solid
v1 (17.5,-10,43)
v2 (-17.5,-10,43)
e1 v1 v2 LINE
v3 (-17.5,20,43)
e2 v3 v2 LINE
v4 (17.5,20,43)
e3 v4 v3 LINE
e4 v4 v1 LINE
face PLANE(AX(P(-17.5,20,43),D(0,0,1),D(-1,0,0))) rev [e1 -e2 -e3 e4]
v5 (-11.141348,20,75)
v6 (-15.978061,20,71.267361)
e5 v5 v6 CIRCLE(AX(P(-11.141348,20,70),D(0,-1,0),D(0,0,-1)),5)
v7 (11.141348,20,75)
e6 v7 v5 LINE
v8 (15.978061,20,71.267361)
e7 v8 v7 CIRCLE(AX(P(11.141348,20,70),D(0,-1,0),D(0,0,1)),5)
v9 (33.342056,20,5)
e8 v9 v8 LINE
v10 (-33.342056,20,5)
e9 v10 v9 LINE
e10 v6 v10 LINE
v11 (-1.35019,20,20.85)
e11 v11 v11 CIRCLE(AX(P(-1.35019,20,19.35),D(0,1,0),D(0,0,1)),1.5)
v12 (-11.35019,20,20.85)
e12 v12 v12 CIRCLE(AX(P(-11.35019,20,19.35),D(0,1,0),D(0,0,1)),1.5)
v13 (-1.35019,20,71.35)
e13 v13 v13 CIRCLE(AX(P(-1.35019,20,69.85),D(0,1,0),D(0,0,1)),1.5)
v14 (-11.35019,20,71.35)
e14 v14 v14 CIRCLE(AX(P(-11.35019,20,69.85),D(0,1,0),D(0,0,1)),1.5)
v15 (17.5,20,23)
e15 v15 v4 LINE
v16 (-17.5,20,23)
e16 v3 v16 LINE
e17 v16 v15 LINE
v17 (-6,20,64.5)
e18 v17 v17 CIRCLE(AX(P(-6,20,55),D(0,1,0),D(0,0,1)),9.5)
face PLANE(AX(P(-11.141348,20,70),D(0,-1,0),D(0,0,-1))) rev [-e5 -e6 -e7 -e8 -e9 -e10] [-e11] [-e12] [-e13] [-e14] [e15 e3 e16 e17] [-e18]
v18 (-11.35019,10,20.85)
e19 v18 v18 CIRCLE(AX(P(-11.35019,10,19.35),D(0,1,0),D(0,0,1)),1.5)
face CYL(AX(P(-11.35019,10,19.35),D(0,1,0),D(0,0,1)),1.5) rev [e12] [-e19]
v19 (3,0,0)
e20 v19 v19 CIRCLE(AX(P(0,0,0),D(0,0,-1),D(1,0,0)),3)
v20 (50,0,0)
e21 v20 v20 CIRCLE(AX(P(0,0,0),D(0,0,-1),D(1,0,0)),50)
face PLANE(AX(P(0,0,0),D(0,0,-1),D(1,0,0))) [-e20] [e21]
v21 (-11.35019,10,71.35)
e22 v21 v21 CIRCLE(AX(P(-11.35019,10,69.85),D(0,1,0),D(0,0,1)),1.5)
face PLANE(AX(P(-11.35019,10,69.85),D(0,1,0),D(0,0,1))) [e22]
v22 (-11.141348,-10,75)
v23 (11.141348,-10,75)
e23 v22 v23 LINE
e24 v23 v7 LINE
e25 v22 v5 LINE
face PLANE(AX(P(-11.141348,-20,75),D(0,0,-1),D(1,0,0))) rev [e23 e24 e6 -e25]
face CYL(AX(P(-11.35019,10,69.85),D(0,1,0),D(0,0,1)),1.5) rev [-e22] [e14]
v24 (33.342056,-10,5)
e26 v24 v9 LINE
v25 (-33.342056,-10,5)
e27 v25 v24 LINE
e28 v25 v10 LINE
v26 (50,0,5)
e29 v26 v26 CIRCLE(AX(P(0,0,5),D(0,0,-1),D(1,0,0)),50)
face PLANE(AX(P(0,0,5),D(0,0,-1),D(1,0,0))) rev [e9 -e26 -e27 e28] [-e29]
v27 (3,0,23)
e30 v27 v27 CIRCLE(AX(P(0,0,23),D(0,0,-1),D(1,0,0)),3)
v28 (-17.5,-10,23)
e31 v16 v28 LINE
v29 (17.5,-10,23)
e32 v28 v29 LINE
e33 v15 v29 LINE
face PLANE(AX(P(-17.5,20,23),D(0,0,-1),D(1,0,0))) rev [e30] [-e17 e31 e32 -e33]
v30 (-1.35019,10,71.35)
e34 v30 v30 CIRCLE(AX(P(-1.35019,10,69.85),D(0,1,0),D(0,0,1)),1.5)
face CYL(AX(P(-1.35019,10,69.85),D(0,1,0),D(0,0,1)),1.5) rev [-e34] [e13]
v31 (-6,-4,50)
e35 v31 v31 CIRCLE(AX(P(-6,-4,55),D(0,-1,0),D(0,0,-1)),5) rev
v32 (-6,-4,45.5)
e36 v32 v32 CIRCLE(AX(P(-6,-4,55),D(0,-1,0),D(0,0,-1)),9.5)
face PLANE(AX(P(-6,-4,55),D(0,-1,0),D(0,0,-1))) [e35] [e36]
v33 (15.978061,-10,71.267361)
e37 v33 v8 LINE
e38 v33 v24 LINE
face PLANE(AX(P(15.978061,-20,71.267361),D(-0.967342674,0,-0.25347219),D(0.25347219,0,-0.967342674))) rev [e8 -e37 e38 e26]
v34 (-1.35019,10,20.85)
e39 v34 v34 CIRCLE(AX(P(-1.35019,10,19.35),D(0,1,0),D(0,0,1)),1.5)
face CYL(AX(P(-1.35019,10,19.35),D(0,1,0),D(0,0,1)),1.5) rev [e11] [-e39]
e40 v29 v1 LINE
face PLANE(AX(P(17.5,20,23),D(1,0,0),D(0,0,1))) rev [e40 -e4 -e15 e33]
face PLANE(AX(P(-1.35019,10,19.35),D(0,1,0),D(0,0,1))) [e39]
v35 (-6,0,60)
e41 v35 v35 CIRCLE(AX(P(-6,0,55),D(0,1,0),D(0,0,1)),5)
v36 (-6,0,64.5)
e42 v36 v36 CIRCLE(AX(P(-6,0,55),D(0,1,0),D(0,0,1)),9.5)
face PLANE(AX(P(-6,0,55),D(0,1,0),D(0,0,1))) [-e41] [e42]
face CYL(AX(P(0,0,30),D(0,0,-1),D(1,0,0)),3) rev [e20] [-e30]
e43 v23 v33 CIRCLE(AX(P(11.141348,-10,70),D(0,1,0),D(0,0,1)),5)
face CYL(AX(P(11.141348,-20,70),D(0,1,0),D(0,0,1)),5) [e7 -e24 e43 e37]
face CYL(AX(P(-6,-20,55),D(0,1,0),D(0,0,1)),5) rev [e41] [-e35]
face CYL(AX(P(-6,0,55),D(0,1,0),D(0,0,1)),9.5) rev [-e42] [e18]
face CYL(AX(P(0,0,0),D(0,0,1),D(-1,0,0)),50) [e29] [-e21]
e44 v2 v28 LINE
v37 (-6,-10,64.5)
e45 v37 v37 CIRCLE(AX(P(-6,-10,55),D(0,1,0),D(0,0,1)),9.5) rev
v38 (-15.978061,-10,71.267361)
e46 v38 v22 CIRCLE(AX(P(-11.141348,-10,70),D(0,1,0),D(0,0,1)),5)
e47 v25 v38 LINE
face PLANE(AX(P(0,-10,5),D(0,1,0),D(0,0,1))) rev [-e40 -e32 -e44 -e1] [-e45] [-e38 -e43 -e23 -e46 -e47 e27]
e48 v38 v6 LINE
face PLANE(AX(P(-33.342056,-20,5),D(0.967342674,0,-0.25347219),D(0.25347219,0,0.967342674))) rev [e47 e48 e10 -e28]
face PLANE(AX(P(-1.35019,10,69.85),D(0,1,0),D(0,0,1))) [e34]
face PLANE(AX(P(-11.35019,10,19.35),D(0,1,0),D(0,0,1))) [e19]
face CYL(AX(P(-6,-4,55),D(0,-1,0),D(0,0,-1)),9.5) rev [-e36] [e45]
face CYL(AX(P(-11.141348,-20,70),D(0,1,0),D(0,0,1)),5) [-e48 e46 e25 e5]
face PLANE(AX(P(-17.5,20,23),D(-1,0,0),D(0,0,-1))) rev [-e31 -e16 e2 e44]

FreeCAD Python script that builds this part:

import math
import FreeCAD as App
import Part
import Sketcher

V = App.Vector


def add_polygon(sketch, points):
    """Adds a closed chain of lines whose ends are joined by coincident constraints."""
    first, n = sketch.GeometryCount, len(points)
    for a, b in zip(points, points[1:] + points[:1]):
        sketch.addGeometry(Part.LineSegment(App.Vector(*a, 0), App.Vector(*b, 0)), False)
    for i in range(n):
        sketch.addConstraint(Sketcher.Constraint("Coincident", first + i, 2, first + (i + 1) % n, 1))

doc = App.newDocument("Part")
params = doc.addObject("Spreadsheet::Sheet", "Params")
for row, (alias, value) in enumerate([
    ("sketch1_radius", "5 mm"),
    ("pad1_length", "40 mm"),
    ("sketch2_diameter", "19 mm"),
    ("pocket1_length", "20 mm"),
    ("sketch3_diameter", "10 mm"),
    ("sketch4_diameter", "19 mm"),
    ("pocket3_length", "16 mm"),
    ("sketch5_width", "35 mm"),
    ("sketch5_height", "20 mm"),
    ("sketch6_diameter", "6 mm"),
    ("pocket5_length", "25 mm"),
    ("sketch7_diameter", "100 mm"),
    ("sketch7_diameter2", "6 mm"),
    ("pad2_length", "5 mm"),
    ("pocket6_length", "10 mm"),
    ("sketch9_diameter", "3 mm"),
    ("pocket7_length", "10 mm"),
    ("sketch10_diameter", "3 mm"),
    ("pocket8_length", "10 mm"),
], start=1):
    params.set(f"A{row}", alias)
    params.set(f"B{row}", "=" + value)
    params.setAlias(f"B{row}", alias)

body = doc.addObject("PartDesign::Body", "Body")

sketch1 = body.newObject("Sketcher::SketchObject", "Sketch")
sketch1.AttachmentSupport = (doc.getObject("XZ_Plane"), [""])
sketch1.MapMode = "FlatFace"
sketch1.addGeometry(Part.LineSegment(V(11.141348, -70, 0), V(-11.141348, -70, 0)), False)
sketch1.addGeometry(Part.ArcOfCircle(Part.Circle(V(-11.141348, -65, 0), V(0, 0, 1), 5), math.radians(-165.316926), math.radians(-90)), False)
sketch1.addGeometry(Part.LineSegment(V(-15.978061, -66.267361, 0), V(-33.342056, 0, 0)), False)
sketch1.addGeometry(Part.LineSegment(V(-33.342056, 0, 0), V(33.342056, 0, 0)), False)
sketch1.addGeometry(Part.LineSegment(V(33.342056, 0, 0), V(15.978061, -66.267361, 0)), False)
sketch1.addGeometry(Part.ArcOfCircle(Part.Circle(V(11.141348, -65, 0), V(0, 0, 1), 5), math.radians(-90), math.radians(-14.683074)), False)
sketch1.addConstraint(Sketcher.Constraint("Tangent", 0, 2, 1, 2))
sketch1.addConstraint(Sketcher.Constraint("Tangent", 1, 1, 2, 1))
sketch1.addConstraint(Sketcher.Constraint("Coincident", 2, 2, 3, 1))
sketch1.addConstraint(Sketcher.Constraint("Coincident", 3, 2, 4, 1))
sketch1.addConstraint(Sketcher.Constraint("Tangent", 4, 2, 5, 2))
sketch1.addConstraint(Sketcher.Constraint("Tangent", 5, 1, 0, 1))
sketch1.addConstraint(Sketcher.Constraint("Horizontal", 0))
sketch1.addConstraint(Sketcher.Constraint("Horizontal", 3))
sketch1.addConstraint(Sketcher.Constraint("Equal", 1, 5))
sketch1.addConstraint(Sketcher.Constraint("Symmetric", 2, 2, 3, 2, -1, 1))
sketch1.addConstraint(Sketcher.Constraint("Horizontal", 1, 1, 4, 2))
sketch1.addConstraint(Sketcher.Constraint("Radius", 1, 5.0))
sketch1.addConstraint(Sketcher.Constraint("DistanceY", 1, 3, -1, 1, 65.0))
sketch1.addConstraint(Sketcher.Constraint("DistanceX", 3, 1, 3, 2, 66.684112))
sketch1.addConstraint(Sketcher.Constraint("DistanceX", 0, 2, 0, 1, 22.282695))
sketch1.setExpression("Constraints[11]", "Params.sketch1_radius")
pad1 = body.newObject("PartDesign::Pad", "Pad")
pad1.Profile = sketch1
pad1.setExpression("Length", "Params.pad1_length")
pad1.Reversed = True

sketch2 = body.newObject("Sketcher::SketchObject", "Sketch001")
sketch2.AttachmentSupport = (doc.getObject("XZ_Plane"), [""])
sketch2.MapMode = "FlatFace"
sketch2.addGeometry(Part.Circle(V(-6, -50, 0), V(0, 0, 1), 9.5), False)
sketch2.addConstraint(Sketcher.Constraint("Diameter", 0, 19.0))
sketch2.addConstraint(Sketcher.Constraint("DistanceX", 0, 3, -1, 1, 6.0))
sketch2.addConstraint(Sketcher.Constraint("DistanceY", 0, 3, -1, 1, 50.0))
sketch2.setExpression("Constraints[0]", "Params.sketch2_diameter")
pocket1 = body.newObject("PartDesign::Pocket", "Pocket")
pocket1.Profile = sketch2
pocket1.setExpression("Length", "Params.pocket1_length")

sketch3 = body.newObject("Sketcher::SketchObject", "Sketch002")
sketch3.AttachmentSupport = (doc.getObject("XZ_Plane"), [""])
sketch3.MapMode = "FlatFace"
sketch3.AttachmentOffset = App.Placement(V(0, 0, -20), App.Rotation())
sketch3.addGeometry(Part.Circle(V(-6, -50, 0), V(0, 0, 1), 5), False)
sketch3.addConstraint(Sketcher.Constraint("Diameter", 0, 10.0))
sketch3.addConstraint(Sketcher.Constraint("DistanceX", 0, 3, -1, 1, 6.0))
sketch3.addConstraint(Sketcher.Constraint("DistanceY", 0, 3, -1, 1, 50.0))
sketch3.setExpression("Constraints[0]", "Params.sketch3_diameter")
pocket2 = body.newObject("PartDesign::Pocket", "Pocket001")
pocket2.Profile = sketch3
pocket2.Type = "ThroughAll"

sketch4 = body.newObject("Sketcher::SketchObject", "Sketch003")
sketch4.AttachmentSupport = (doc.getObject("XZ_Plane"), [""])
sketch4.MapMode = "FlatFace"
sketch4.AttachmentOffset = App.Placement(V(0, 0, -40), App.Rotation())
sketch4.addGeometry(Part.Circle(V(-6, -50, 0), V(0, 0, 1), 9.5), False)
sketch4.addConstraint(Sketcher.Constraint("Diameter", 0, 19.0))
sketch4.addConstraint(Sketcher.Constraint("DistanceX", 0, 3, -1, 1, 6.0))
sketch4.addConstraint(Sketcher.Constraint("DistanceY", 0, 3, -1, 1, 50.0))
sketch4.setExpression("Constraints[0]", "Params.sketch4_diameter")
pocket3 = body.newObject("PartDesign::Pocket", "Pocket002")
pocket3.Profile = sketch4
pocket3.setExpression("Length", "Params.pocket3_length")
pocket3.Reversed = True

sketch5 = body.newObject("Sketcher::SketchObject", "Sketch004")
sketch5.AttachmentSupport = (doc.getObject("XZ_Plane"), [""])
sketch5.MapMode = "FlatFace"
sketch5.AttachmentOffset = App.Placement(V(0, 0, -40), App.Rotation())
add_polygon(sketch5, [(-17.5, -38), (-17.5, -18), (17.5, -18), (17.5, -38)])
sketch5.addConstraint(Sketcher.Constraint("Vertical", 0))
sketch5.addConstraint(Sketcher.Constraint("Horizontal", 1))
sketch5.addConstraint(Sketcher.Constraint("Vertical", 2))
sketch5.addConstraint(Sketcher.Constraint("Horizontal", 3))
sketch5.addConstraint(Sketcher.Constraint("DistanceX", 1, 1, 1, 2, 35.0))
sketch5.addConstraint(Sketcher.Constraint("DistanceY", 0, 1, 0, 2, 20.0))
sketch5.addConstraint(Sketcher.Constraint("DistanceY", 0, 2, -1, 1, 18.0))
sketch5.addConstraint(Sketcher.Constraint("DistanceX", 0, 2, -1, 1, 17.5))
sketch5.setExpression("Constraints[8]", "Params.sketch5_width")
sketch5.setExpression("Constraints[9]", "Params.sketch5_height")
pocket4 = body.newObject("PartDesign::Pocket", "Pocket003")
pocket4.Profile = sketch5
pocket4.Type = "ThroughAll"
pocket4.Reversed = True

sketch6 = body.newObject("Sketcher::SketchObject", "Sketch005")
sketch6.AttachmentSupport = (doc.getObject("XY_Plane"), [""])
sketch6.MapMode = "FlatFace"
sketch6.addGeometry(Part.Circle(V(0, 20, 0), V(0, 0, 1), 3), False)
sketch6.addConstraint(Sketcher.Constraint("PointOnObject", 0, 3, -2))
sketch6.addConstraint(Sketcher.Constraint("Diameter", 0, 6.0))
sketch6.addConstraint(Sketcher.Constraint("DistanceY", -1, 1, 0, 3, 20.0))
sketch6.setExpression("Constraints[1]", "Params.sketch6_diameter")
pocket5 = body.newObject("PartDesign::Pocket", "Pocket004")
pocket5.Profile = sketch6
pocket5.setExpression("Length", "Params.pocket5_length")

sketch7 = body.newObject("Sketcher::SketchObject", "Sketch006")
sketch7.AttachmentSupport = (doc.getObject("XY_Plane"), [""])
sketch7.MapMode = "FlatFace"
sketch7.addGeometry(Part.Circle(V(0, 20, 0), V(0, 0, 1), 50), False)
sketch7.addGeometry(Part.Circle(V(0, 20, 0), V(0, 0, 1), 3), False)
sketch7.addConstraint(Sketcher.Constraint("Coincident", 1, 3, 0, 3))
sketch7.addConstraint(Sketcher.Constraint("PointOnObject", 0, 3, -2))
sketch7.addConstraint(Sketcher.Constraint("Diameter", 0, 100.0))
sketch7.addConstraint(Sketcher.Constraint("Diameter", 1, 6.0))
sketch7.addConstraint(Sketcher.Constraint("DistanceY", -1, 1, 0, 3, 20.0))
sketch7.setExpression("Constraints[2]", "Params.sketch7_diameter")
sketch7.setExpression("Constraints[3]", "Params.sketch7_diameter2")
pad2 = body.newObject("PartDesign::Pad", "Pad001")
pad2.Profile = sketch7
pad2.setExpression("Length", "Params.pad2_length")

sketch8 = body.newObject("Sketcher::SketchObject", "Sketch007")
sketch8.AttachmentSupport = (doc.getObject("XZ_Plane"), [""])
sketch8.MapMode = "FlatFace"
sketch8.AttachmentOffset = App.Placement(V(0, 0, -40), App.Rotation())
add_polygon(sketch8, [(-33.342056, -74.867048), (-33.342056, 0), (35.864199, 0), (35.864199, -74.867048)])
sketch8.addConstraint(Sketcher.Constraint("Vertical", 0))
sketch8.addConstraint(Sketcher.Constraint("Horizontal", 1))
sketch8.addConstraint(Sketcher.Constraint("Vertical", 2))
sketch8.addConstraint(Sketcher.Constraint("Horizontal", 3))
sketch8.addConstraint(Sketcher.Constraint("PointOnObject", 0, 2, -1))
sketch8.addConstraint(Sketcher.Constraint("DistanceY", 0, 1, 0, 2, 74.867048))
sketch8.addConstraint(Sketcher.Constraint("DistanceX", -1, 1, 1, 2, 35.864199))
sketch8.addConstraint(Sketcher.Constraint("DistanceX", 1, 1, 1, 2, 69.206255))
pocket6 = body.newObject("PartDesign::Pocket", "Pocket005")
pocket6.Profile = sketch8
pocket6.setExpression("Length", "Params.pocket6_length")
pocket6.Reversed = True

sketch9 = body.newObject("Sketcher::SketchObject", "Sketch008")
sketch9.AttachmentSupport = (doc.getObject("XZ_Plane"), [""])
sketch9.MapMode = "FlatFace"
sketch9.addGeometry(Part.Circle(V(-1.35019, -64.85, 0), V(0, 0, 1), 1.5), False)
sketch9.addGeometry(Part.Circle(V(-11.35019, -64.85, 0), V(0, 0, 1), 1.5), False)
sketch9.addConstraint(Sketcher.Constraint("Equal", 0, 1))
sketch9.addConstraint(Sketcher.Constraint("Horizontal", 0, 3, 1, 3))
sketch9.addConstraint(Sketcher.Constraint("Diameter", 0, 3.0))
sketch9.addConstraint(Sketcher.Constraint("DistanceX", 1, 3, 0, 3, 10.0))
sketch9.addConstraint(Sketcher.Constraint("DistanceY", 0, 3, -1, 1, 64.85))
sketch9.addConstraint(Sketcher.Constraint("DistanceX", 0, 3, -1, 1, 1.35019))
sketch9.setExpression("Constraints[2]", "Params.sketch9_diameter")
pocket7 = body.newObject("PartDesign::Pocket", "Pocket006")
pocket7.Profile = sketch9
pocket7.setExpression("Length", "Params.pocket7_length")

sketch10 = body.newObject("Sketcher::SketchObject", "Sketch009")
sketch10.AttachmentSupport = (doc.getObject("XZ_Plane"), [""])
sketch10.MapMode = "FlatFace"
sketch10.addGeometry(Part.Circle(V(-11.35019, -14.35, 0), V(0, 0, 1), 1.5), False)
sketch10.addGeometry(Part.Circle(V(-1.35019, -14.35, 0), V(0, 0, 1), 1.5), False)
sketch10.addConstraint(Sketcher.Constraint("Equal", 0, 1))
sketch10.addConstraint(Sketcher.Constraint("Horizontal", 0, 3, 1, 3))
sketch10.addConstraint(Sketcher.Constraint("Diameter", 0, 3.0))
sketch10.addConstraint(Sketcher.Constraint("DistanceX", 0, 3, 1, 3, 10.0))
sketch10.addConstraint(Sketcher.Constraint("DistanceY", 0, 3, -1, 1, 14.35))
sketch10.addConstraint(Sketcher.Constraint("DistanceX", 0, 3, -1, 1, 11.35019))
sketch10.setExpression("Constraints[2]", "Params.sketch10_diameter")
pocket8 = body.newObject("PartDesign::Pocket", "Pocket007")
pocket8.Profile = sketch10
pocket8.setExpression("Length", "Params.pocket8_length")
body2 = doc.addObject("PartDesign::Body", "Body001")
doc.recompute()

body.Placement = App.Placement(V(0, 40, -65), App.Rotation(V(1, 0, 0), 180))
boolean = body2.newObject("PartDesign::Boolean", "Boolean")
boolean.Type = "Fuse"
boolean.addObjects([body])
body3 = doc.addObject("PartDesign::Body", "Body002")
doc.recompute()

body2.Placement = App.Placement(V(0, -20, 70), App.Rotation(V(0, 0, 1), 0))
boolean2 = body3.newObject("PartDesign::Boolean", "Boolean001")
boolean2.Type = "Fuse"
boolean2.addObjects([body2])

doc.recompute()
